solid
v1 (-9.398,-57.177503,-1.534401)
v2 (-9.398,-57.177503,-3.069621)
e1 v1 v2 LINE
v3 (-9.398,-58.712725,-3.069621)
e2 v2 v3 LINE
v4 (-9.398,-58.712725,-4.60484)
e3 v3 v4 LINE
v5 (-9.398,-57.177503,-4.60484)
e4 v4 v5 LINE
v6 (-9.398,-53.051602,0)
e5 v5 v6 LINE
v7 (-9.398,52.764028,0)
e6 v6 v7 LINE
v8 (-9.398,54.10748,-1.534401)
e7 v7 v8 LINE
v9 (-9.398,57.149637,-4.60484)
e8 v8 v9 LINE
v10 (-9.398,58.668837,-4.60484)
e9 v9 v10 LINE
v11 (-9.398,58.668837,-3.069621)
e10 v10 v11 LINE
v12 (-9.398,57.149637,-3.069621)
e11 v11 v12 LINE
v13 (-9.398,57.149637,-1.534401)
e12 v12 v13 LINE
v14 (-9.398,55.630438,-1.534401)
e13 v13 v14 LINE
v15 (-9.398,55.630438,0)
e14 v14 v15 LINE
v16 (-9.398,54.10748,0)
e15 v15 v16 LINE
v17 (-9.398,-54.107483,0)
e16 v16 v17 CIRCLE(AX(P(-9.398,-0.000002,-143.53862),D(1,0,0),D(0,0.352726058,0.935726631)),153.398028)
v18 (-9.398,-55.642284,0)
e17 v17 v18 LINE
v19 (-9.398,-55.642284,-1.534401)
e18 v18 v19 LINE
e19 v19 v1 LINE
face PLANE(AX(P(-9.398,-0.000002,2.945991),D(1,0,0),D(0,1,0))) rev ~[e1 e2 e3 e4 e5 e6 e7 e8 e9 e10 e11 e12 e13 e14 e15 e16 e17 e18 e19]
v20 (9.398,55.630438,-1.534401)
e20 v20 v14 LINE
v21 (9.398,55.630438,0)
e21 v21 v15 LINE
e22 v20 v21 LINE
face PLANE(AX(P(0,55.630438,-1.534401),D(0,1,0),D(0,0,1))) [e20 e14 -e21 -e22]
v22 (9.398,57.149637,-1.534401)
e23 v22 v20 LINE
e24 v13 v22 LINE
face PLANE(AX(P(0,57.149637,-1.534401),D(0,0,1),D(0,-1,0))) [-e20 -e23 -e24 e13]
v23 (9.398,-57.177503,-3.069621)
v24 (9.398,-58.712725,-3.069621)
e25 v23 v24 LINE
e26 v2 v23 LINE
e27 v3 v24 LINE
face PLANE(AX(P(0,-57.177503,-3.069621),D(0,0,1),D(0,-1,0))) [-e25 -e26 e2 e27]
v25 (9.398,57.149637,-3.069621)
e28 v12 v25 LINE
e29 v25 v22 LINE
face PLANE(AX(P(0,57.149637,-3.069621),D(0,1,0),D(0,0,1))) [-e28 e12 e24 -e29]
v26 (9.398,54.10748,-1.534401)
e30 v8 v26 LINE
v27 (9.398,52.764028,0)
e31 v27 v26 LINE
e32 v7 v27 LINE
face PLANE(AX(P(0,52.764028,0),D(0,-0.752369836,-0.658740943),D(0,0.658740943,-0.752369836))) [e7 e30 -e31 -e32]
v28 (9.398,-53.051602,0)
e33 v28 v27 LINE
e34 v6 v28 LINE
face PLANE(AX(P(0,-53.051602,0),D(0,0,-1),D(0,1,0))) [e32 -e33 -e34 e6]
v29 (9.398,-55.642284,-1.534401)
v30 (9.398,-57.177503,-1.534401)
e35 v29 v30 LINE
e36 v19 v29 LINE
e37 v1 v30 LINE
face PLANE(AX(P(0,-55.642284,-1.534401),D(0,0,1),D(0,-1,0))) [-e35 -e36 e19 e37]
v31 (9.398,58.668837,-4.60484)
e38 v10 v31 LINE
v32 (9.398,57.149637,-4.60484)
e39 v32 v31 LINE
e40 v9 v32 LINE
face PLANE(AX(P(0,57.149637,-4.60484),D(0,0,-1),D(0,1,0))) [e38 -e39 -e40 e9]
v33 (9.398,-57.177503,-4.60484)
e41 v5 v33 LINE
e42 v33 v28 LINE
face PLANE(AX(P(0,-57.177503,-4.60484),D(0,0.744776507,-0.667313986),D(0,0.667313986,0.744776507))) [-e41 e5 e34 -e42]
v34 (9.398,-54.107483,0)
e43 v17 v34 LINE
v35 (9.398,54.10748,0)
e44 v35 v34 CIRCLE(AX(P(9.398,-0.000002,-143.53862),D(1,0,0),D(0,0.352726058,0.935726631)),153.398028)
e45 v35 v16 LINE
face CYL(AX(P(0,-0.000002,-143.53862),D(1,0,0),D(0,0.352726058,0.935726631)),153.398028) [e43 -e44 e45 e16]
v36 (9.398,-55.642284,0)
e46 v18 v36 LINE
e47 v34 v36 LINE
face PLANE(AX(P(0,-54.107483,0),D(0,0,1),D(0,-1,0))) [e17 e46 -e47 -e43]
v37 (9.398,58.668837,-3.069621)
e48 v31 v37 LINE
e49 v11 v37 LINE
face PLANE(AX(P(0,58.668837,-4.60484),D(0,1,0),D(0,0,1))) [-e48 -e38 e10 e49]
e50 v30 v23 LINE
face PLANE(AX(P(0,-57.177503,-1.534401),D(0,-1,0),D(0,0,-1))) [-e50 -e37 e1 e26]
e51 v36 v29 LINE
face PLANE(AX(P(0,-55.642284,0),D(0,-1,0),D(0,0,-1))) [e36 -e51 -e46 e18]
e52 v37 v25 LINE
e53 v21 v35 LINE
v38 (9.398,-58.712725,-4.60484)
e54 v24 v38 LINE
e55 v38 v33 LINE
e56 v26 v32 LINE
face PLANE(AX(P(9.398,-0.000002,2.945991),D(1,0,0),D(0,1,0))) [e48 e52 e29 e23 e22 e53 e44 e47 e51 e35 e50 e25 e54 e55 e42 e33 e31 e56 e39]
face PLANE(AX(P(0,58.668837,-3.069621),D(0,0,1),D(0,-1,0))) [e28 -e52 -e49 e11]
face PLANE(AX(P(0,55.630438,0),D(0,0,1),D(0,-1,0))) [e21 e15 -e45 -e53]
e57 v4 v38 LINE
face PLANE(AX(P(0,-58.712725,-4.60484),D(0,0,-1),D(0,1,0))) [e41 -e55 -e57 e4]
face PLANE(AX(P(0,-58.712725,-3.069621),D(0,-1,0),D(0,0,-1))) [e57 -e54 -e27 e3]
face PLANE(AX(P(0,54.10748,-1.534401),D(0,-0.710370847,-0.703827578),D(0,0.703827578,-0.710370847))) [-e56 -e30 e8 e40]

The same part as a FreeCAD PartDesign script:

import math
import FreeCAD as App
import Part
import Sketcher
Q = App.Units.Quantity

doc = App.newDocument("Part")
body = doc.addObject("PartDesign::Body", "Body")

sketch1 = body.newObject("Sketcher::SketchObject", "Sketch")
sketch1.AttachmentSupport = (doc.getObject("YZ_Plane"), [""])
sketch1.MapMode = "FlatFace"
sketch1.addGeometry([
    Part.ArcOfCircle(Part.Circle(App.Vector(-0.000002, -143.53862, 0), App.Vector(0, 0, 1), 153.398028), math.radians(69.345856), math.radians(110.654144)),
    Part.LineSegment(App.Vector(-54.107483, 0, 0), App.Vector(-55.642284, 0, 0)),
    Part.LineSegment(App.Vector(-55.642284, 0, 0), App.Vector(-55.642284, -1.534401, 0)),
    Part.LineSegment(App.Vector(-55.642284, -1.534401, 0), App.Vector(-57.177503, -1.534401, 0)),
    Part.LineSegment(App.Vector(-57.177503, -1.534401, 0), App.Vector(-57.177503, -3.069621, 0)),
    Part.LineSegment(App.Vector(-57.177503, -3.069621, 0), App.Vector(-58.712725, -3.069621, 0)),
    Part.LineSegment(App.Vector(-58.712725, -3.069621, 0), App.Vector(-58.712725, -4.60484, 0)),
    Part.LineSegment(App.Vector(-58.712725, -4.60484, 0), App.Vector(-57.177503, -4.60484, 0)),
    Part.LineSegment(App.Vector(-57.177503, -4.60484, 0), App.Vector(-53.051602, 0, 0)),
    Part.LineSegment(App.Vector(-53.051602, 0, 0), App.Vector(52.764028, 0, 0)),
    Part.LineSegment(App.Vector(52.764028, 0, 0), App.Vector(54.10748, -1.534401, 0)),
    Part.LineSegment(App.Vector(54.10748, -1.534401, 0), App.Vector(57.149637, -4.60484, 0)),
    Part.LineSegment(App.Vector(57.149637, -4.60484, 0), App.Vector(58.668837, -4.60484, 0)),
    Part.LineSegment(App.Vector(58.668837, -4.60484, 0), App.Vector(58.668837, -3.069621, 0)),
    Part.LineSegment(App.Vector(58.668837, -3.069621, 0), App.Vector(57.149637, -3.069621, 0)),
    Part.LineSegment(App.Vector(57.149637, -3.069621, 0), App.Vector(57.149637, -1.534401, 0)),
    Part.LineSegment(App.Vector(57.149637, -1.534401, 0), App.Vector(55.630438, -1.534401, 0)),
    Part.LineSegment(App.Vector(55.630438, -1.534401, 0), App.Vector(55.630438, 0, 0)),
    Part.LineSegment(App.Vector(55.630438, 0, 0), App.Vector(54.10748, 0, 0)),
], False)
sketch1.addConstraint([
    Sketcher.Constraint("Coincident", 0, 2, 1, 1),
    Sketcher.Constraint("Coincident", 1, 2, 2, 1),
    Sketcher.Constraint("Coincident", 2, 2, 3, 1),
    Sketcher.Constraint("Coincident", 3, 2, 4, 1),
    Sketcher.Constraint("Coincident", 4, 2, 5, 1),
    Sketcher.Constraint("Coincident", 5, 2, 6, 1),
    Sketcher.Constraint("Coincident", 6, 2, 7, 1),
    Sketcher.Constraint("Coincident", 7, 2, 8, 1),
    Sketcher.Constraint("Coincident", 8, 2, 9, 1),
    Sketcher.Constraint("Coincident", 9, 2, 10, 1),
    Sketcher.Constraint("Coincident", 10, 2, 11, 1),
    Sketcher.Constraint("Coincident", 11, 2, 12, 1),
    Sketcher.Constraint("Coincident", 12, 2, 13, 1),
    Sketcher.Constraint("Coincident", 13, 2, 14, 1),
    Sketcher.Constraint("Coincident", 14, 2, 15, 1),
    Sketcher.Constraint("Coincident", 15, 2, 16, 1),
    Sketcher.Constraint("Coincident", 16, 2, 17, 1),
    Sketcher.Constraint("Coincident", 17, 2, 18, 1),
    Sketcher.Constraint("Coincident", 18, 2, 0, 1),
    Sketcher.Constraint("Horizontal", 1),
    Sketcher.Constraint("Vertical", 2),
    Sketcher.Constraint("Horizontal", 3),
    Sketcher.Constraint("Vertical", 4),
    Sketcher.Constraint("Horizontal", 5),
    Sketcher.Constraint("Vertical", 6),
    Sketcher.Constraint("Horizontal", 7),
    Sketcher.Constraint("Horizontal", 9),
    Sketcher.Constraint("Horizontal", 12),
    Sketcher.Constraint("Vertical", 13),
    Sketcher.Constraint("Horizontal", 14),
    Sketcher.Constraint("Vertical", 15),
    Sketcher.Constraint("Horizontal", 16),
    Sketcher.Constraint("Vertical", 17),
    Sketcher.Constraint("Horizontal", 18),
    Sketcher.Constraint("Symmetric", 0, 2, 18, 2, -1, 1),
    Sketcher.Constraint("PointOnObject", 0, 3, -2),
    Sketcher.Constraint("PointOnObject", 8, 2, -1),
    Sketcher.Constraint("Horizontal", 3, 2, 10, 2),
    Sketcher.Constraint("Horizontal", 7, 2, 11, 2),
    Sketcher.Constraint("Horizontal", 5, 2, 13, 2),
    Sketcher.Constraint("Horizontal", 10, 2, 15, 2),
    Sketcher.Constraint("Vertical", 4, 2, 7, 2),
    Sketcher.Constraint("Vertical", 11, 2, 14, 2),
    Sketcher.Constraint("Vertical", 10, 2, 18, 2),
    Sketcher.Constraint("Equal", 14, 16),
    Sketcher.Constraint("Equal", 7, 4),
    Sketcher.Constraint("Equal", 4, 6),
    Sketcher.Constraint("Equal", 3, 13),
    Sketcher.Constraint("DistanceX", 1, 2, 1, 1, Q("1.534801 mm")),
    Sketcher.Constraint("DistanceX", 12, 1, 12, 2, Q("1.5192 mm")),
    Sketcher.Constraint("DistanceY", 2, 2, 2, 1, Q("1.534401 mm")),
    Sketcher.Constraint("Radius", 0, Q("153.398028 mm")),
    Sketcher.Constraint("DistanceX", 3, 2, 3, 1, Q("1.535219 mm")),
    Sketcher.Constraint("DistanceX", 9, 1, 9, 2, Q("105.81563 mm")),
    Sketcher.Constraint("DistanceX", 3, 2, 0, 3, Q("57.177501 mm")),
    Sketcher.Constraint("DistanceX", 3, 2, 8, 2, Q("4.125901 mm")),
    Sketcher.Constraint("DistanceX", 18, 2, 18, 1, Q("1.522958 mm")),
])
pad1 = body.newObject("PartDesign::Pad", "Pad")
pad1.Profile = sketch1
pad1.Length = Q("0.74 in")
pad1.Midplane = True

doc.recompute()
